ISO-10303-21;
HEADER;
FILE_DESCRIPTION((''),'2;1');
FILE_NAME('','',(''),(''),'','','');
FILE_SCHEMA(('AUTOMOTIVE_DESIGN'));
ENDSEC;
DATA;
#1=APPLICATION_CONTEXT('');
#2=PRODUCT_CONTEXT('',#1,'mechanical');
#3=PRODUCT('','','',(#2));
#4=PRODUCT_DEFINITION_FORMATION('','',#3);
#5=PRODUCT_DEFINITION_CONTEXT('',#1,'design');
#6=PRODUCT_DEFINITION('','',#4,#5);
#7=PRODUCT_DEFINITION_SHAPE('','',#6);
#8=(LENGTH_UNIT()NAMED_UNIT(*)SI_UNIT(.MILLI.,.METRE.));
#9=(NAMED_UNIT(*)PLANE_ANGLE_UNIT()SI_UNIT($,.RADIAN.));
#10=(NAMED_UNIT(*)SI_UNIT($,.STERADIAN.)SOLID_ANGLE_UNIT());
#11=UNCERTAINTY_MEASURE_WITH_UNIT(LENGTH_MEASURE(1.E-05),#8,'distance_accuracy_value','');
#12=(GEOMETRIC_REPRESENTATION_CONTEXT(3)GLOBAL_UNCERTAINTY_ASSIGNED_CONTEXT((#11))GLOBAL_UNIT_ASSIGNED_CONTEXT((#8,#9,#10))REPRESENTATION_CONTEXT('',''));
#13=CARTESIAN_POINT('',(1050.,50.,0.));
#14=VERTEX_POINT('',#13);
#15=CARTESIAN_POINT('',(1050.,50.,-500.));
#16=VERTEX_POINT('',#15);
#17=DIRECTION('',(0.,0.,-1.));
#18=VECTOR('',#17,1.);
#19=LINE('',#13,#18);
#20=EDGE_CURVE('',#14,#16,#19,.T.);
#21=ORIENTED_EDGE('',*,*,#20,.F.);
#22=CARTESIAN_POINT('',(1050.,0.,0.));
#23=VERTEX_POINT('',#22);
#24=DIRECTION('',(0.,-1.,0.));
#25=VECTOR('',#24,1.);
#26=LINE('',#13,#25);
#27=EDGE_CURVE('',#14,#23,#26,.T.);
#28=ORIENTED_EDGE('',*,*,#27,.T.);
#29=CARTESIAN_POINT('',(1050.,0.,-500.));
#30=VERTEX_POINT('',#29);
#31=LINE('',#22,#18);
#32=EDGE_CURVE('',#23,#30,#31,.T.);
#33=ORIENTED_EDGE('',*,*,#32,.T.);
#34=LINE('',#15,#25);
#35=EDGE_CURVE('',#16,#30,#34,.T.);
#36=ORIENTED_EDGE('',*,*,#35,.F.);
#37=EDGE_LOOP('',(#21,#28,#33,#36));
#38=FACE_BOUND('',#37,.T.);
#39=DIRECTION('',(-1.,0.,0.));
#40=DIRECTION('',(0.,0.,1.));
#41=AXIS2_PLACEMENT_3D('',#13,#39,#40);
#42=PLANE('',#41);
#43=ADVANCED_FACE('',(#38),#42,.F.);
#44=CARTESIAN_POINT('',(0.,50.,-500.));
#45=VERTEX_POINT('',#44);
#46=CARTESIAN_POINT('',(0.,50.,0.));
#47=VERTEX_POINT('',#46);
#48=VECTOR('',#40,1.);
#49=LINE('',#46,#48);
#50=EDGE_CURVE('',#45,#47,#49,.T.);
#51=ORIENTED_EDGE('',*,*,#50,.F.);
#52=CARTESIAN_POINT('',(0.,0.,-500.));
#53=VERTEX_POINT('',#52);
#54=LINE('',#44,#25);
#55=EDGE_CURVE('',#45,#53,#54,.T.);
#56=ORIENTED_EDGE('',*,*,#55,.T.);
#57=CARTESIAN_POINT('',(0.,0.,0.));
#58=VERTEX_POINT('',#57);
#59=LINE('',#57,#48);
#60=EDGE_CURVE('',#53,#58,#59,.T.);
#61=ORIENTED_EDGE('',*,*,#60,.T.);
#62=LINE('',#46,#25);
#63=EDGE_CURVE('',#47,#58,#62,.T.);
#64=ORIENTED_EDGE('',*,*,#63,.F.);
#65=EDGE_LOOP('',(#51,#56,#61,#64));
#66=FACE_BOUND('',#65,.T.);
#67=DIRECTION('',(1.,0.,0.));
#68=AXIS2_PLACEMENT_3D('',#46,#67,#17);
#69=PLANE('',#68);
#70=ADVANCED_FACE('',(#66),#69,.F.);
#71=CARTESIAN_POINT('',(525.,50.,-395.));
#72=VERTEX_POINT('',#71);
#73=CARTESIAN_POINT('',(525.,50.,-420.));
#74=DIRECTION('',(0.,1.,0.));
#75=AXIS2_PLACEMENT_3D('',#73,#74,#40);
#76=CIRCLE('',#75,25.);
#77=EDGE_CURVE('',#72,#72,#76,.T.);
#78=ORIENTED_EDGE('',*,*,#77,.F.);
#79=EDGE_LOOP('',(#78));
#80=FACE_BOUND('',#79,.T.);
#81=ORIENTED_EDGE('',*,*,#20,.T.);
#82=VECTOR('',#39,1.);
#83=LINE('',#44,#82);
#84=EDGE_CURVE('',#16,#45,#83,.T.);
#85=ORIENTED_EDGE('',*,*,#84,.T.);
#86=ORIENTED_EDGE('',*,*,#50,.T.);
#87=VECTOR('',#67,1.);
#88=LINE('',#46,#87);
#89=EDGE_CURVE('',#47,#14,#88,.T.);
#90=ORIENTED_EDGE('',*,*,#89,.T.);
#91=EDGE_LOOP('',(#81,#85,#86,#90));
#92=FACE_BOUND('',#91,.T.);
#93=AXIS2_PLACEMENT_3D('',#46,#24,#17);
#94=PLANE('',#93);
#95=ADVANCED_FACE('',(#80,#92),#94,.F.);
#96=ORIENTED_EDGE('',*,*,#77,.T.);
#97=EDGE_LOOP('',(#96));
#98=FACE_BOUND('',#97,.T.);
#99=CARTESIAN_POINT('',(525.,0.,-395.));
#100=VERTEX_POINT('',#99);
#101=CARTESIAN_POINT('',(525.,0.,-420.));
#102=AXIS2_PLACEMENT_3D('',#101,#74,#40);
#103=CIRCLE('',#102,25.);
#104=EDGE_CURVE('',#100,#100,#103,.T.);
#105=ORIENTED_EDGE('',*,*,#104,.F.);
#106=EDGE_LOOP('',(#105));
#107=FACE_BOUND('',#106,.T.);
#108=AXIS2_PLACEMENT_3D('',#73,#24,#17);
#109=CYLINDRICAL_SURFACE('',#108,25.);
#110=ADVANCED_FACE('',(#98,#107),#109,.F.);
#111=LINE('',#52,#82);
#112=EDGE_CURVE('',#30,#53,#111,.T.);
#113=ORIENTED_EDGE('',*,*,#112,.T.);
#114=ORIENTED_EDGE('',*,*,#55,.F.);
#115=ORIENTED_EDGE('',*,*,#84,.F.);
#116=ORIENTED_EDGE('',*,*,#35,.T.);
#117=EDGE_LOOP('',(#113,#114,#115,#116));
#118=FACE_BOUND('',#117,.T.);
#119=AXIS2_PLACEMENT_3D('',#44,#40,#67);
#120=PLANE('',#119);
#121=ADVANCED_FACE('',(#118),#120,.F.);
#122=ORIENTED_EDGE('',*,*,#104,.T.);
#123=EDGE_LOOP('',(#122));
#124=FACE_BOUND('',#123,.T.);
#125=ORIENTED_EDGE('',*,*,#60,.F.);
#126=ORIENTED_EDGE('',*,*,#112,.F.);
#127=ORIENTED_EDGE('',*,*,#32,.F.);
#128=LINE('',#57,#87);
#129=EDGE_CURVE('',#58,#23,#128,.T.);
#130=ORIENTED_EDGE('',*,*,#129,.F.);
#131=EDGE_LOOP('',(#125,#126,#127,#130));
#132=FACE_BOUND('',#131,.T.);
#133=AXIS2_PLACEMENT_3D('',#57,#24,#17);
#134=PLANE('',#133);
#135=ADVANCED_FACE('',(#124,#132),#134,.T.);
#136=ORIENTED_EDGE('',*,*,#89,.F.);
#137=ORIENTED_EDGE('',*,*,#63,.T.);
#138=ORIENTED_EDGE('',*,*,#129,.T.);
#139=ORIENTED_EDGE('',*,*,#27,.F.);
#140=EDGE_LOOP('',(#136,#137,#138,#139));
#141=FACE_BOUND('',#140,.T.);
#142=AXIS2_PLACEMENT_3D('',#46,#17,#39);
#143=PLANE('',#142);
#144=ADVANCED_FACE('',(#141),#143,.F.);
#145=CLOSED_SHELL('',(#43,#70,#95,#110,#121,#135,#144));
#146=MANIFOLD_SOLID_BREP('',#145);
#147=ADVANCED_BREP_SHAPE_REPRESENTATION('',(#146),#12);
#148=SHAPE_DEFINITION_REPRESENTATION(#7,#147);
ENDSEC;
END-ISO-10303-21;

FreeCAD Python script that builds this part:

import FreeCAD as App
import Part
import Sketcher

V = App.Vector
Q = App.Units.Quantity

doc = App.newDocument("Part")
body = doc.addObject("PartDesign::Body", "Body")

# Sketch on XZ plane
sketch1 = body.newObject("Sketcher::SketchObject", "Sketch")
sketch1.AttachmentSupport = (doc.getObject("XZ_Plane"), [""])
sketch1.MapMode = "FlatFace"
sketch1.addGeometry([
    Part.LineSegment(V(0, -500, 0), V(0, 0, 0)),  # 0
    Part.LineSegment(V(0, 0, 0), V(1050, 0, 0)),  # 1
    Part.LineSegment(V(1050, 0, 0), V(1050, -500, 0)),  # 2
    Part.LineSegment(V(1050, -500, 0), V(0, -500, 0)),  # 3
    Part.Circle(V(525, -420, 0), V(0, 0, 1), 25),  # 4
], False)
sketch1.addConstraint([
    Sketcher.Constraint("Coincident", 0, 2, 1, 1),
    Sketcher.Constraint("Coincident", 1, 2, 2, 1),
    Sketcher.Constraint("Coincident", 2, 2, 3, 1),
    Sketcher.Constraint("Coincident", 3, 2, 0, 1),
    Sketcher.Constraint("Vertical", 0),
    Sketcher.Constraint("Horizontal", 1),
    Sketcher.Constraint("Vertical", 2),
    Sketcher.Constraint("Horizontal", 3),
    Sketcher.Constraint("Coincident", 0, 2, -1, 1),
    Sketcher.Constraint("Diameter", 4, Q("50 mm")),
    Sketcher.Constraint("DistanceX", 1, 1, 1, 2, Q("1050 mm")),
    Sketcher.Constraint("DistanceY", 0, 1, 0, 2, Q("500 mm")),
    Sketcher.Constraint("DistanceX", -1, 1, 4, 3, Q("525 mm")),
    Sketcher.Constraint("DistanceY", 4, 3, -1, 1, Q("420 mm")),
])
pad1 = body.newObject("PartDesign::Pad", "Pad")
pad1.Profile = sketch1
pad1.Length = 50
pad1.Reversed = True

doc.recompute()
